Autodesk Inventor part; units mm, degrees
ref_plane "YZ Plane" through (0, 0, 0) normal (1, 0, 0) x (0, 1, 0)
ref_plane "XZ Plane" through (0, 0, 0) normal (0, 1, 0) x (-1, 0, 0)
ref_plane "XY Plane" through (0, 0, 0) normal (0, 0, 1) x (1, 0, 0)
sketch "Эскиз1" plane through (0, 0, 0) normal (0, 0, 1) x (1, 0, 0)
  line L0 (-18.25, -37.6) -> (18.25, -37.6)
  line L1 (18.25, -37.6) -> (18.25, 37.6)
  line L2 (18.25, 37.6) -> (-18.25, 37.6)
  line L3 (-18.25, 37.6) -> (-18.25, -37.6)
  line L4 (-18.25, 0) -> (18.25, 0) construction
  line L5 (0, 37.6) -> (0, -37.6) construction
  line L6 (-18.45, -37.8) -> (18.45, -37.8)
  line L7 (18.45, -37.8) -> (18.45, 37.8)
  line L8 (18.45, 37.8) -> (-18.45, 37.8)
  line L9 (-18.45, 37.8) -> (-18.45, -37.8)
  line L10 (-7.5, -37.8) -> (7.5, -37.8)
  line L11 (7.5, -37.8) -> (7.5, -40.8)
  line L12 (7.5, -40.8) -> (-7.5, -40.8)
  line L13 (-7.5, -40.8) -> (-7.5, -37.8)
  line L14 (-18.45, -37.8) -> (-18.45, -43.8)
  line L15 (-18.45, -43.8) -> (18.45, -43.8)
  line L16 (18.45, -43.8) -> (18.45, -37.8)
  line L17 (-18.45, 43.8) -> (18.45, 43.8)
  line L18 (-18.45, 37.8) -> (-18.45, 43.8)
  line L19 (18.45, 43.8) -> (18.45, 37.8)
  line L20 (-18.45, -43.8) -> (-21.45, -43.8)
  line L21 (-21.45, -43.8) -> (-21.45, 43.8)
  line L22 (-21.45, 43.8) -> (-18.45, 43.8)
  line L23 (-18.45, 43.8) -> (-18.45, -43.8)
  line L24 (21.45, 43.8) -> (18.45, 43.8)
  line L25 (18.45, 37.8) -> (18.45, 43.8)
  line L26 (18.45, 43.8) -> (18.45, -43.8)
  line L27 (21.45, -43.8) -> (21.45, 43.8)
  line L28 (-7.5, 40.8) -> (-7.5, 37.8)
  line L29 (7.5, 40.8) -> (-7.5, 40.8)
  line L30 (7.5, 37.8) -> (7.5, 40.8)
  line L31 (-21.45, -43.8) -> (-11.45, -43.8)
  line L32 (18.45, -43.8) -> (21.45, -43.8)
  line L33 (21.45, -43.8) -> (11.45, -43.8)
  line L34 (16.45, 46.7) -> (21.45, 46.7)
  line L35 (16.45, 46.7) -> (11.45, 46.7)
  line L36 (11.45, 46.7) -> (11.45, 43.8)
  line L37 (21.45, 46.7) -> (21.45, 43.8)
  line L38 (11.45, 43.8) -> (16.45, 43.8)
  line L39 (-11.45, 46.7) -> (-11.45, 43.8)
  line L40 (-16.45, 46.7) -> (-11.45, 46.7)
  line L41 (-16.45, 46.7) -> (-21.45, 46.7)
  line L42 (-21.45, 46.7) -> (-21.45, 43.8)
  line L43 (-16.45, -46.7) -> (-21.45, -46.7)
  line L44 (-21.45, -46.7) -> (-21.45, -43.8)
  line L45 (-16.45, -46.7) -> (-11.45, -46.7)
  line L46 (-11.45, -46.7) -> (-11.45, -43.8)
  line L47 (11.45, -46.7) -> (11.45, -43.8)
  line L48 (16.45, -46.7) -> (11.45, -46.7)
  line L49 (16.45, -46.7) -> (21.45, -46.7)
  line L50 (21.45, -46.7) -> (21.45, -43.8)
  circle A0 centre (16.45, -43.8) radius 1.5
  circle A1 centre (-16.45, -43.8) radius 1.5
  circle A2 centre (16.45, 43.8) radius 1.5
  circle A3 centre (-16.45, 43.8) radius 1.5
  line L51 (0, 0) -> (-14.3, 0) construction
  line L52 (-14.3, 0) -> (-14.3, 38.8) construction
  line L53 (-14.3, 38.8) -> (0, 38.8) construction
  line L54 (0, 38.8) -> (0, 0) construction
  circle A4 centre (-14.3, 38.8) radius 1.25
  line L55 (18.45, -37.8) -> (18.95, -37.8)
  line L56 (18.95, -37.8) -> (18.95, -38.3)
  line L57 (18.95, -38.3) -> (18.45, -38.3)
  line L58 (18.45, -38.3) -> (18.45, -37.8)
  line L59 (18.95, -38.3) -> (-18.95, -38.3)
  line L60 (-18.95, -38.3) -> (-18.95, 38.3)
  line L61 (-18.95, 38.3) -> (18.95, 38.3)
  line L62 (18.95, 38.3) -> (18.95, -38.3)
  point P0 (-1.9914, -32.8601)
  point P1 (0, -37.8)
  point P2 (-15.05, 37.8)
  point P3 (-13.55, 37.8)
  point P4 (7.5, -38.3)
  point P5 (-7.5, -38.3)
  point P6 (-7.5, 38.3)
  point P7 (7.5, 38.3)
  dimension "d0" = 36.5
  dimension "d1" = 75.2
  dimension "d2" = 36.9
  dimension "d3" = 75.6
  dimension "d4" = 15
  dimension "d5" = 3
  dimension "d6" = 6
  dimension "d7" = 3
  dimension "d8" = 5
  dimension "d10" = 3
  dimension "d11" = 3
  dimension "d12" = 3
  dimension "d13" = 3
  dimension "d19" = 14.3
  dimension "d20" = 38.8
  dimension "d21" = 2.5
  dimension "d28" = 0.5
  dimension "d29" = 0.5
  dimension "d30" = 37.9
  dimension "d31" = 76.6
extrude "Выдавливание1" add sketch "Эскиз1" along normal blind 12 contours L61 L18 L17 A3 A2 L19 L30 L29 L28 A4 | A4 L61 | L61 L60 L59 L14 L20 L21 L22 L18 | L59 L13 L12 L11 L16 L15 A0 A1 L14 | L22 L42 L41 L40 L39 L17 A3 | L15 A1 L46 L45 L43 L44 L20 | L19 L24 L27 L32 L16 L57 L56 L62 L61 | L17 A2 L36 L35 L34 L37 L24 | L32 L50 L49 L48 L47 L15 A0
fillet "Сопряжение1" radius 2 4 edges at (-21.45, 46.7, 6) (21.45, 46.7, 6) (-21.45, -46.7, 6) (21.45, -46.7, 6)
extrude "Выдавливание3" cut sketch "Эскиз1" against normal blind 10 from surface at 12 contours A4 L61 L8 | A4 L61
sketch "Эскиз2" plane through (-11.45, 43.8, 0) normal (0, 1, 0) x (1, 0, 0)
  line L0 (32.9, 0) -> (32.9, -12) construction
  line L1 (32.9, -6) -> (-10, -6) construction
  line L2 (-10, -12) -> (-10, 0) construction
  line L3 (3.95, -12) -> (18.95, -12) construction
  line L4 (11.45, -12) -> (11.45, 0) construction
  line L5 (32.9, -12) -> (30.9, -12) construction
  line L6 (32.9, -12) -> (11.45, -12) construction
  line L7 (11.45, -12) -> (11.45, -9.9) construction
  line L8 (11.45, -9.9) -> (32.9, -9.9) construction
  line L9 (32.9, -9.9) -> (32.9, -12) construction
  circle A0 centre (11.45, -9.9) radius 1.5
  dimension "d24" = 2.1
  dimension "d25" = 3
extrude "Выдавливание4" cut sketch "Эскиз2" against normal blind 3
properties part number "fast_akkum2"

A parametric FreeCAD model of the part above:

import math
import FreeCAD as App
import Part
import Sketcher
from FreeCAD import Vector


def edges_at(feature, points):
    """Names of the edges that pass closest to the given points."""
    edges = feature.Shape.Edges
    near = lambda p: min(range(len(edges)), key=lambda i: edges[i].distToShape(Part.Vertex(*p))[0])
    return sorted({f"Edge{near(p) + 1}" for p in points})


def add_polygon(sketch, points):
    """Adds a closed chain of lines whose ends are joined by coincident constraints."""
    first, n = sketch.GeometryCount, len(points)
    for a, b in zip(points, points[1:] + points[:1]):
        sketch.addGeometry(Part.LineSegment(App.Vector(*a, 0), App.Vector(*b, 0)), False)
    for i in range(n):
        sketch.addConstraint(Sketcher.Constraint("Coincident", first + i, 2, first + (i + 1) % n, 1))

doc = App.newDocument("Part")
body = doc.addObject("PartDesign::Body", "Body")

sketch1 = doc.addObject("Sketcher::SketchObject", "Sketch")
body.addObject(sketch1)
sketch1.AttachmentSupport = (doc.XY_Plane, [""])
sketch1.MapMode = "FlatFace"
add_polygon(sketch1, [(11.4, 43.8), (-11.4, 43.8), (-11.4, 46.7), (-21.4, 46.7), (-21.4, -46.7), (-11.4, -46.7), (-11.4, -43.8), (11.4, -43.8), (11.4, -46.7), (21.4, -46.7), (21.4, 46.7), (11.4, 46.7)])
add_polygon(sketch1, [(-7.5, 38.3), (-7.5, 40.8), (7.5, 40.8), (7.5, 38.3), (18.9, 38.3), (18.9, -38.3), (7.5, -38.3), (7.5, -40.8), (-7.5, -40.8), (-7.5, -38.3), (-18.9, -38.3), (-18.9, 38.3)])
sketch1.addGeometry(Part.Circle(Vector(-16.4, 43.8, 0), Vector(0, 0, 1), 1.5), False)
sketch1.addGeometry(Part.Circle(Vector(16.4, 43.8, 0), Vector(0, 0, 1), 1.5), False)
sketch1.addGeometry(Part.Circle(Vector(16.4, -43.8, 0), Vector(0, 0, 1), 1.5), False)
sketch1.addGeometry(Part.Circle(Vector(-16.4, -43.8, 0), Vector(0, 0, 1), 1.5), False)
sketch1.addConstraint(Sketcher.Constraint("Horizontal", 0))
sketch1.addConstraint(Sketcher.Constraint("Vertical", 1))
sketch1.addConstraint(Sketcher.Constraint("Horizontal", 2))
sketch1.addConstraint(Sketcher.Constraint("Vertical", 3))
sketch1.addConstraint(Sketcher.Constraint("Horizontal", 4))
sketch1.addConstraint(Sketcher.Constraint("Vertical", 5))
sketch1.addConstraint(Sketcher.Constraint("Horizontal", 6))
sketch1.addConstraint(Sketcher.Constraint("Vertical", 7))
sketch1.addConstraint(Sketcher.Constraint("Horizontal", 8))
sketch1.addConstraint(Sketcher.Constraint("Vertical", 9))
sketch1.addConstraint(Sketcher.Constraint("Horizontal", 10))
sketch1.addConstraint(Sketcher.Constraint("Vertical", 11))
sketch1.addConstraint(Sketcher.Constraint("Vertical", 12))
sketch1.addConstraint(Sketcher.Constraint("Horizontal", 13))
sketch1.addConstraint(Sketcher.Constraint("Vertical", 14))
sketch1.addConstraint(Sketcher.Constraint("Horizontal", 15))
sketch1.addConstraint(Sketcher.Constraint("Vertical", 16))
sketch1.addConstraint(Sketcher.Constraint("Horizontal", 17))
sketch1.addConstraint(Sketcher.Constraint("Vertical", 18))
sketch1.addConstraint(Sketcher.Constraint("Horizontal", 19))
sketch1.addConstraint(Sketcher.Constraint("Vertical", 20))
sketch1.addConstraint(Sketcher.Constraint("Horizontal", 21))
sketch1.addConstraint(Sketcher.Constraint("Vertical", 22))
sketch1.addConstraint(Sketcher.Constraint("Horizontal", 23))
sketch1.addConstraint(Sketcher.Constraint("Equal", 24, 25))
sketch1.addConstraint(Sketcher.Constraint("Equal", 25, 26))
sketch1.addConstraint(Sketcher.Constraint("Equal", 26, 27))
sketch1.addConstraint(Sketcher.Constraint("Symmetric", 24, 3, 26, 3, -1, 1))
sketch1.addConstraint(Sketcher.Constraint("Symmetric", 25, 3, 27, 3, -1, 1))
sketch1.addConstraint(Sketcher.Constraint("Symmetric", 0, 2, 6, 2, -1, 1))
sketch1.addConstraint(Sketcher.Constraint("Symmetric", 2, 2, 8, 2, -1, 1))
sketch1.addConstraint(Sketcher.Constraint("Symmetric", 4, 2, 10, 2, -1, 1))
sketch1.addConstraint(Sketcher.Constraint("Symmetric", 12, 2, 18, 2, -1, 1))
sketch1.addConstraint(Sketcher.Constraint("Symmetric", 14, 2, 20, 2, -1, 1))
sketch1.addConstraint(Sketcher.Constraint("Symmetric", 16, 2, 22, 2, -1, 1))
sketch1.addConstraint(Sketcher.Constraint("Symmetric", 24, 3, 25, 3, -2))
sketch1.addConstraint(Sketcher.Constraint("Symmetric", 4, 2, 7, 2, -2))
sketch1.addConstraint(Sketcher.Constraint("Symmetric", 17, 2, 20, 2, -2))
sketch1.addConstraint(Sketcher.Constraint("Horizontal", 25, 3, 0, 2))
sketch1.addConstraint(Sketcher.Constraint("Diameter", 24, 3.0))
sketch1.addConstraint(Sketcher.Constraint("DistanceX", 13, 1, 13, 2, 15.0))
sketch1.addConstraint(Sketcher.Constraint("DistanceY", 12, 1, 12, 2, 2.5))
sketch1.addConstraint(Sketcher.Constraint("DistanceY", 16, 2, 16, 1, 76.6))
sketch1.addConstraint(Sketcher.Constraint("DistanceX", 24, 3, 0, 2, 5.0))
sketch1.addConstraint(Sketcher.Constraint("DistanceX", 2, 2, 24, 3, 5.0))
sketch1.addConstraint(Sketcher.Constraint("DistanceY", 12, 2, 0, 2, 3.0))
sketch1.addConstraint(Sketcher.Constraint("DistanceX", 2, 2, 25, 3, 37.9))
sketch1.addConstraint(Sketcher.Constraint("DistanceX", 25, 3, 15, 2, 2.5))
sketch1.addConstraint(Sketcher.Constraint("DistanceY", 1, 1, 1, 2, 2.9))
pad1 = doc.addObject("PartDesign::Pad", "Pad")
body.addObject(pad1)
pad1.Profile = sketch1
pad1.Length = 12
doc.recompute()

fillet = doc.addObject("PartDesign::Fillet", "Fillet")
body.addObject(fillet)
fillet.Base = (pad1, edges_at(pad1, [
    (-21.45, 46.7, 6),
    (21.45, 46.7, 6),
    (-21.45, -46.7, 6),
    (21.45, -46.7, 6),
]))
fillet.Radius = 2

sketch2 = doc.addObject("Sketcher::SketchObject", "Sketch001")
body.addObject(sketch2)
sketch2.AttachmentSupport = (doc.XY_Plane, [""])
sketch2.MapMode = "FlatFace"
sketch2.AttachmentOffset = App.Placement(Vector(0, 0, 12), App.Rotation())
sketch2.addGeometry(Part.LineSegment(Vector(-15.1, 37.8, 0), Vector(-13.6, 37.8, 0)), False)
sketch2.addGeometry(Part.ArcOfCircle(Part.Circle(Vector(-14.3, 38.8, 0), Vector(0, 0, 1), 1.2), math.radians(-53), math.radians(233)), False)
sketch2.addConstraint(Sketcher.Constraint("Coincident", 0, 1, 1, 2))
sketch2.addConstraint(Sketcher.Constraint("Coincident", 1, 1, 0, 2))
sketch2.addConstraint(Sketcher.Constraint("Horizontal", 0))
sketch2.addConstraint(Sketcher.Constraint("Radius", 1, 1.25))
sketch2.addConstraint(Sketcher.Constraint("DistanceX", 1, 3, -1, 1, 14.3))
sketch2.addConstraint(Sketcher.Constraint("DistanceY", -1, 1, 1, 3, 38.8))
sketch2.addConstraint(Sketcher.Constraint("DistanceX", 0, 1, 0, 2, 1.5))
pocket1 = doc.addObject("PartDesign::Pocket", "Pocket")
body.addObject(pocket1)
pocket1.Profile = sketch2
pocket1.Length = 10

sketch3 = doc.addObject("Sketcher::SketchObject", "Sketch002")
body.addObject(sketch3)
sketch3.AttachmentSupport = (doc.XZ_Plane, [""])
sketch3.MapMode = "FlatFace"
sketch3.AttachmentOffset = App.Placement(Vector(0, 0, -43.8), App.Rotation())
sketch3.addGeometry(Part.Circle(Vector(0, 9.9, 0), Vector(0, 0, 1), 1.5), False)
sketch3.addConstraint(Sketcher.Constraint("PointOnObject", 0, 3, -2))
sketch3.addConstraint(Sketcher.Constraint("Diameter", 0, 3.0))
sketch3.addConstraint(Sketcher.Constraint("DistanceY", -1, 1, 0, 3, 9.9))
pocket2 = doc.addObject("PartDesign::Pocket", "Pocket001")
body.addObject(pocket2)
pocket2.Profile = sketch3
pocket2.Length = 3
pocket2.Reversed = True

doc.recompute()
